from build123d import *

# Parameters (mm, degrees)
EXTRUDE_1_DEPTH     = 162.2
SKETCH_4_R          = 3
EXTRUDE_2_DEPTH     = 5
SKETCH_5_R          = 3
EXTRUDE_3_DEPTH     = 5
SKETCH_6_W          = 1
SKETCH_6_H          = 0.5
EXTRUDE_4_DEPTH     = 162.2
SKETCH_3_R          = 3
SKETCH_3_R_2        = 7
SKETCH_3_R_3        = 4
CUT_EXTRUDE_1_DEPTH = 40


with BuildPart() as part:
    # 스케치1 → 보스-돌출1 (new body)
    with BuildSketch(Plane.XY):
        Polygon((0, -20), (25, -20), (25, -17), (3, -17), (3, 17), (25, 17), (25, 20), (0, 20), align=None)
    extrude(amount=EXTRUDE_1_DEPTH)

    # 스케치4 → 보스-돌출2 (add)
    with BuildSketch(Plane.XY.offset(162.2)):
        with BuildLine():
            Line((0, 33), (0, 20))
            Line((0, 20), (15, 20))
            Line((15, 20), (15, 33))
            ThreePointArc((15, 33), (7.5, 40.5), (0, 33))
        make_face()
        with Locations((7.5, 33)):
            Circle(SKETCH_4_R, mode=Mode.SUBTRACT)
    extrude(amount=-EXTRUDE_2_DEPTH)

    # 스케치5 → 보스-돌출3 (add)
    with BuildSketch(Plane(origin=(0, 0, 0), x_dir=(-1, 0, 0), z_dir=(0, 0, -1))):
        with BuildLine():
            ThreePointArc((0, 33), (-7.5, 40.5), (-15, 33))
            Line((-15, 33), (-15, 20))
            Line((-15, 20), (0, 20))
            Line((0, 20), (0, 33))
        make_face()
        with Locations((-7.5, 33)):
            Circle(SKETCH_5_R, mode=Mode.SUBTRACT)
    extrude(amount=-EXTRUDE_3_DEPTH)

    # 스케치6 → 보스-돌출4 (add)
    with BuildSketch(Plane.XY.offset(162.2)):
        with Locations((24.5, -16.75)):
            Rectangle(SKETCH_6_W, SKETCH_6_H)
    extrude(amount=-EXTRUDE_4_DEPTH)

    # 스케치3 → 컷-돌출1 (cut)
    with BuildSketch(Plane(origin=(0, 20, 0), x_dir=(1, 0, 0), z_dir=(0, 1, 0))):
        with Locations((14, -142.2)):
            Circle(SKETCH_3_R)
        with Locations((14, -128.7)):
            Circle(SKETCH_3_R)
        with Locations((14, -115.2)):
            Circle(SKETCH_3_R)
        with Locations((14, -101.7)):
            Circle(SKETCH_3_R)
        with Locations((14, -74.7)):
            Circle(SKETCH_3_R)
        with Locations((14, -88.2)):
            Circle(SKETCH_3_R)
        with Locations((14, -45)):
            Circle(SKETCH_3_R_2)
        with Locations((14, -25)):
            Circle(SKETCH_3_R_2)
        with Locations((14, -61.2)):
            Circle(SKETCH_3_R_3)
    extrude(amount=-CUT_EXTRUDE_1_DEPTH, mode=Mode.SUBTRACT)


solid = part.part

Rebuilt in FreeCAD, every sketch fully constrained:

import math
import FreeCAD as App
import Part
import Sketcher
from FreeCAD import Vector


def add_polygon(sketch, points):
    """Adds a closed chain of lines whose ends are joined by coincident constraints."""
    first, n = sketch.GeometryCount, len(points)
    for a, b in zip(points, points[1:] + points[:1]):
        sketch.addGeometry(Part.LineSegment(App.Vector(*a, 0), App.Vector(*b, 0)), False)
    for i in range(n):
        sketch.addConstraint(Sketcher.Constraint("Coincident", first + i, 2, first + (i + 1) % n, 1))

doc = App.newDocument("Part")
body = doc.addObject("PartDesign::Body", "Body")

sketch1 = body.newObject("Sketcher::SketchObject", "Sketch")
sketch1.AttachmentSupport = (doc.getObject("XY_Plane"), [""])
sketch1.MapMode = "FlatFace"
add_polygon(sketch1, [(0, -20), (25, -20), (25, -17), (3, -17), (3, 17), (25, 17), (25, 20), (0, 20)])
sketch1.addConstraint([
    Sketcher.Constraint("Horizontal", 0),
    Sketcher.Constraint("Vertical", 1),
    Sketcher.Constraint("Horizontal", 2),
    Sketcher.Constraint("Vertical", 3),
    Sketcher.Constraint("Horizontal", 4),
    Sketcher.Constraint("Vertical", 5),
    Sketcher.Constraint("Horizontal", 6),
    Sketcher.Constraint("Vertical", 7),
    Sketcher.Constraint("Symmetric", 6, 2, 7, 2, -1, 1),
    Sketcher.Constraint("Symmetric", 1, 2, 4, 2, -1),
    Sketcher.Constraint("DistanceX", 0, 1, 0, 2, 25.0),
    Sketcher.Constraint("DistanceX", 2, 2, 2, 1, 22.0),
    Sketcher.Constraint("DistanceY", 1, 1, 1, 2, 3.0),
    Sketcher.Constraint("DistanceY", 3, 1, 3, 2, 34.0),
])
pad1 = body.newObject("PartDesign::Pad", "Pad")
pad1.Profile = sketch1
pad1.Length = 162.2

sketch2 = body.newObject("Sketcher::SketchObject", "Sketch001")
sketch2.AttachmentSupport = (doc.getObject("XY_Plane"), [""])
sketch2.MapMode = "FlatFace"
sketch2.AttachmentOffset = App.Placement(Vector(0, 0, 162.2), App.Rotation())
sketch2.addGeometry([
    Part.LineSegment(Vector(0, 33, 0), Vector(0, 20, 0)),
    Part.LineSegment(Vector(0, 20, 0), Vector(15, 20, 0)),
    Part.LineSegment(Vector(15, 20, 0), Vector(15, 33, 0)),
    Part.ArcOfCircle(Part.Circle(Vector(7.5, 33, 0), Vector(0, 0, 1), 7.5), math.radians(0), math.radians(180)),
    Part.Circle(Vector(7.5, 33, 0), Vector(0, 0, 1), 3),
], False)
sketch2.addConstraint([
    Sketcher.Constraint("Coincident", 0, 2, 1, 1),
    Sketcher.Constraint("Coincident", 1, 2, 2, 1),
    Sketcher.Constraint("Tangent", 2, 2, 3, 1),
    Sketcher.Constraint("Tangent", 3, 2, 0, 1),
    Sketcher.Constraint("Vertical", 0),
    Sketcher.Constraint("Horizontal", 1),
    Sketcher.Constraint("Vertical", 2),
    Sketcher.Constraint("Coincident", 4, 3, 3, 3),
    Sketcher.Constraint("PointOnObject", 0, 2, -2),
    Sketcher.Constraint("Diameter", 4, 6.0),
    Sketcher.Constraint("Radius", 3, 7.5),
    Sketcher.Constraint("DistanceY", 0, 2, 0, 1, 13.0),
    Sketcher.Constraint("DistanceY", -1, 1, 3, 3, 33.0),
])
pad2 = body.newObject("PartDesign::Pad", "Pad001")
pad2.Profile = sketch2
pad2.Length = 5
pad2.Reversed = True

sketch3 = body.newObject("Sketcher::SketchObject", "Sketch002")
sketch3.AttachmentSupport = (doc.getObject("XY_Plane"), [""])
sketch3.MapMode = "FlatFace"
sketch3.addGeometry([
    Part.ArcOfCircle(Part.Circle(Vector(7.5, 33, 0), Vector(0, 0, 1), 7.5), math.radians(0), math.radians(180)),
    Part.LineSegment(Vector(15, 33, 0), Vector(15, 20, 0)),
    Part.LineSegment(Vector(15, 20, 0), Vector(0, 20, 0)),
    Part.LineSegment(Vector(0, 20, 0), Vector(0, 33, 0)),
    Part.Circle(Vector(7.5, 33, 0), Vector(0, 0, 1), 3),
], False)
sketch3.addConstraint([
    Sketcher.Constraint("Tangent", 0, 1, 1, 1),
    Sketcher.Constraint("Coincident", 1, 2, 2, 1),
    Sketcher.Constraint("Coincident", 2, 2, 3, 1),
    Sketcher.Constraint("Tangent", 3, 2, 0, 2),
    Sketcher.Constraint("Vertical", 1),
    Sketcher.Constraint("Horizontal", 2),
    Sketcher.Constraint("Vertical", 3),
    Sketcher.Constraint("Coincident", 4, 3, 0, 3),
    Sketcher.Constraint("PointOnObject", 2, 2, -2),
    Sketcher.Constraint("Diameter", 4, 6.0),
    Sketcher.Constraint("Radius", 0, 7.5),
    Sketcher.Constraint("DistanceY", 1, 2, 1, 1, 13.0),
    Sketcher.Constraint("DistanceY", -1, 1, 0, 3, 33.0),
])
pad3 = body.newObject("PartDesign::Pad", "Pad002")
pad3.Profile = sketch3
pad3.Length = 5

sketch4 = body.newObject("Sketcher::SketchObject", "Sketch003")
sketch4.AttachmentSupport = (doc.getObject("XY_Plane"), [""])
sketch4.MapMode = "FlatFace"
sketch4.AttachmentOffset = App.Placement(Vector(0, 0, 162.2), App.Rotation())
add_polygon(sketch4, [(24, -16.5), (24, -17), (25, -17), (25, -16.5)])
sketch4.addConstraint([
    Sketcher.Constraint("Vertical", 0),
    Sketcher.Constraint("Horizontal", 1),
    Sketcher.Constraint("Vertical", 2),
    Sketcher.Constraint("Horizontal", 3),
    Sketcher.Constraint("DistanceX", 1, 1, 1, 2, 1.0),
    Sketcher.Constraint("DistanceY", 0, 2, 0, 1, 0.5),
    Sketcher.Constraint("DistanceX", -1, 1, 0, 2, 24.0),
    Sketcher.Constraint("DistanceY", 0, 2, -1, 1, 17.0),
])
pad4 = body.newObject("PartDesign::Pad", "Pad003")
pad4.Profile = sketch4
pad4.Length = 162.2
pad4.Reversed = True

sketch5 = body.newObject("Sketcher::SketchObject", "Sketch004")
sketch5.AttachmentSupport = (doc.getObject("XZ_Plane"), [""])
sketch5.MapMode = "FlatFace"
sketch5.AttachmentOffset = App.Placement(Vector(0, 0, -20), App.Rotation())
sketch5.addGeometry([
    Part.Circle(Vector(14, 142.2, 0), Vector(0, 0, 1), 3),
    Part.Circle(Vector(14, 128.7, 0), Vector(0, 0, 1), 3),
    Part.Circle(Vector(14, 115.2, 0), Vector(0, 0, 1), 3),
    Part.Circle(Vector(14, 101.7, 0), Vector(0, 0, 1), 3),
    Part.Circle(Vector(14, 74.7, 0), Vector(0, 0, 1), 3),
    Part.Circle(Vector(14, 88.2, 0), Vector(0, 0, 1), 3),
    Part.Circle(Vector(14, 45, 0), Vector(0, 0, 1), 7),
    Part.Circle(Vector(14, 25, 0), Vector(0, 0, 1), 7),
    Part.Circle(Vector(14, 61.2, 0), Vector(0, 0, 1), 4),
], False)
sketch5.addConstraint([
    Sketcher.Constraint("Equal", 0, 1),
    Sketcher.Constraint("Equal", 1, 2),
    Sketcher.Constraint("Equal", 2, 3),
    Sketcher.Constraint("Equal", 3, 4),
    Sketcher.Constraint("Equal", 4, 5),
    Sketcher.Constraint("Equal", 6, 7),
    Sketcher.Constraint("Vertical", 0, 3, 1, 3),
    Sketcher.Constraint("Vertical", 1, 3, 2, 3),
    Sketcher.Constraint("Vertical", 2, 3, 3, 3),
    Sketcher.Constraint("Vertical", 3, 3, 4, 3),
    Sketcher.Constraint("Vertical", 4, 3, 5, 3),
    Sketcher.Constraint("Vertical", 5, 3, 6, 3),
    Sketcher.Constraint("Vertical", 6, 3, 7, 3),
    Sketcher.Constraint("Vertical", 7, 3, 8, 3),
    Sketcher.Constraint("Diameter", 0, 6.0),
    Sketcher.Constraint("Diameter", 6, 14.0),
    Sketcher.Constraint("Diameter", 8, 8.0),
    Sketcher.Constraint("DistanceX", -1, 1, 0, 3, 14.0),
    Sketcher.Constraint("DistanceY", -1, 1, 6, 3, 45.0),
    Sketcher.Constraint("DistanceY", -1, 1, 7, 3, 25.0),
    Sketcher.Constraint("DistanceY", 2, 3, 0, 3, 27.0),
    Sketcher.Constraint("DistanceY", 3, 3, 1, 3, 27.0),
    Sketcher.Constraint("DistanceY", 4, 3, 3, 3, 27.0),
    Sketcher.Constraint("DistanceY", 5, 3, 2, 3, 27.0),
    Sketcher.Constraint("DistanceY", 8, 3, 5, 3, 27.0),
    Sketcher.Constraint("DistanceY", -1, 1, 0, 3, 142.2),
    Sketcher.Constraint("DistanceY", -1, 1, 1, 3, 128.7),
])
pocket1 = body.newObject("PartDesign::Pocket", "Pocket")
pocket1.Profile = sketch5
pocket1.Length = 40
pocket1.Reversed = True

doc.recompute()
